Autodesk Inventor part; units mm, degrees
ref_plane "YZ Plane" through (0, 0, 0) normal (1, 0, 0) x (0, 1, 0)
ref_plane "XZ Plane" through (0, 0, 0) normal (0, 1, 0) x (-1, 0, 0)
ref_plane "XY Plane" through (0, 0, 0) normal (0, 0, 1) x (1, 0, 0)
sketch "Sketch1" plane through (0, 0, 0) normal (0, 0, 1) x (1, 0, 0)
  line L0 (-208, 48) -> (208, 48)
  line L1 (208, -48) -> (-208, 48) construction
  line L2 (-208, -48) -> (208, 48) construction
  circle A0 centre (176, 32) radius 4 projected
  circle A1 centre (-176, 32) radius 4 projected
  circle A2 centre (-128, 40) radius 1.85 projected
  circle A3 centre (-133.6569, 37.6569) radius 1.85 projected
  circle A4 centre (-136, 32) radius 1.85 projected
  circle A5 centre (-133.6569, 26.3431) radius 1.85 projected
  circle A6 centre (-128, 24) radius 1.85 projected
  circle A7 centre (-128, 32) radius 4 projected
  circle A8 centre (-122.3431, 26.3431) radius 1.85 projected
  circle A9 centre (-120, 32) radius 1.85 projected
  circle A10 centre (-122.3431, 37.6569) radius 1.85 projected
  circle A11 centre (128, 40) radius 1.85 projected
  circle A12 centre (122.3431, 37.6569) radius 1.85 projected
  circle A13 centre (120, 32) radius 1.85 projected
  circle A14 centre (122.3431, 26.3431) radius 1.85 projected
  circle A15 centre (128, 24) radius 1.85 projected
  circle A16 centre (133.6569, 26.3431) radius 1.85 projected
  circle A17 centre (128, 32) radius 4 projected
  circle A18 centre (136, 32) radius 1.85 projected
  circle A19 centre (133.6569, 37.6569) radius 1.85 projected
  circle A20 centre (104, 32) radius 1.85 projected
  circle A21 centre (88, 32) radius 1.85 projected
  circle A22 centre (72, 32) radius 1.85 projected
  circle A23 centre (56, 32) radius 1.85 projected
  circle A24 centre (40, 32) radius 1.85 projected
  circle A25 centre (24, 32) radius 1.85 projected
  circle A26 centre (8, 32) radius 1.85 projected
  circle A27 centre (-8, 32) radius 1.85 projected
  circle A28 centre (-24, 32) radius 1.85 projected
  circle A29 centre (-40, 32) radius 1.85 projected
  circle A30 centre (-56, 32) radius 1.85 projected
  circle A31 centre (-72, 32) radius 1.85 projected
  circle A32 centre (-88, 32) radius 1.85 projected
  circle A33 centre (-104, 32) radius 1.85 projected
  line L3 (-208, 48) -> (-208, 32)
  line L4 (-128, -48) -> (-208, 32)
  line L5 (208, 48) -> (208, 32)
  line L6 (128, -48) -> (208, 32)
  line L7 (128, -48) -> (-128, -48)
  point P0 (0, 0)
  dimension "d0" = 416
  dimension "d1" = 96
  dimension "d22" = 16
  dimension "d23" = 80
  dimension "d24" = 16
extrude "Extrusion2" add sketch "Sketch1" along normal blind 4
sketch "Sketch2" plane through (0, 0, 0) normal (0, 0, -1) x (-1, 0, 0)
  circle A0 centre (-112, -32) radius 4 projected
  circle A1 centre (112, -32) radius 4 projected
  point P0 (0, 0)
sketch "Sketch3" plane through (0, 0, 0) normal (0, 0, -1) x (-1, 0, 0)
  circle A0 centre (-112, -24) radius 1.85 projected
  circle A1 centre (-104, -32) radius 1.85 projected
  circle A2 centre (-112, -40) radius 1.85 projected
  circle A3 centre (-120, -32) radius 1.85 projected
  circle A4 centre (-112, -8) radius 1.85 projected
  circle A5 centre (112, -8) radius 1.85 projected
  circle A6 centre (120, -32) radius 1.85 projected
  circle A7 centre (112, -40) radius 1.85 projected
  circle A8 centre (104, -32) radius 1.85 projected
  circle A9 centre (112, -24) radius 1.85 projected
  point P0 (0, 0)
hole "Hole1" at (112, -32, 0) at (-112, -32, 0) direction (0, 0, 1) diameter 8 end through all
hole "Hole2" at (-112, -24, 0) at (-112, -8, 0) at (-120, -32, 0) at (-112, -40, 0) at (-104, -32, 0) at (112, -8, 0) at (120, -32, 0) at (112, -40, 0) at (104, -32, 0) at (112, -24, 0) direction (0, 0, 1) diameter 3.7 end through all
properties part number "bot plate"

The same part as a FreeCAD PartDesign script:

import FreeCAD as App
import Part
import Sketcher

V = App.Vector
Q = App.Units.Quantity


def add_polygon(sketch, points):
    """Adds a closed chain of lines whose ends are joined by coincident constraints."""
    first, n = sketch.GeometryCount, len(points)
    for a, b in zip(points, points[1:] + points[:1]):
        sketch.addGeometry(Part.LineSegment(App.Vector(*a, 0), App.Vector(*b, 0)), False)
    for i in range(n):
        sketch.addConstraint(Sketcher.Constraint("Coincident", first + i, 2, first + (i + 1) % n, 1))

doc = App.newDocument("Part")
body = doc.addObject("PartDesign::Body", "Body")

# Sketch on XY plane
sketch1 = body.newObject("Sketcher::SketchObject", "Sketch")
sketch1.AttachmentSupport = (doc.getObject("XY_Plane"), [""])
sketch1.MapMode = "FlatFace"
add_polygon(sketch1, [(208, 48), (-208, 48), (-208, 32), (-128, -48), (128, -48), (208, 32)])  # lines 0-5
sketch1.addGeometry(Part.Circle(V(-176, 32, 0), V(0, 0, 1), 4), False)  # 6
sketch1.addGeometry(Part.Circle(V(-133.7, 26.3, 0), V(0, 0, 1), 1.9), False)  # 7
sketch1.addGeometry(Part.Circle(V(-128, 24, 0), V(0, 0, 1), 1.9), False)  # 8
sketch1.addGeometry(Part.Circle(V(-122.3, 26.3, 0), V(0, 0, 1), 1.9), False)  # 9
sketch1.addGeometry(Part.Circle(V(-136, 32, 0), V(0, 0, 1), 1.9), False)  # 10
sketch1.addGeometry(Part.Circle(V(-128, 32, 0), V(0, 0, 1), 4), False)  # 11
sketch1.addGeometry(Part.Circle(V(-120, 32, 0), V(0, 0, 1), 1.9), False)  # 12
sketch1.addGeometry(Part.Circle(V(-133.7, 37.7, 0), V(0, 0, 1), 1.9), False)  # 13
sketch1.addGeometry(Part.Circle(V(-122.3, 37.7, 0), V(0, 0, 1), 1.9), False)  # 14
sketch1.addGeometry(Part.Circle(V(-128, 40, 0), V(0, 0, 1), 1.9), False)  # 15
sketch1.addGeometry(Part.Circle(V(-104, 32, 0), V(0, 0, 1), 1.9), False)  # 16
sketch1.addGeometry(Part.Circle(V(-88, 32, 0), V(0, 0, 1), 1.9), False)  # 17
sketch1.addGeometry(Part.Circle(V(-72, 32, 0), V(0, 0, 1), 1.9), False)  # 18
sketch1.addGeometry(Part.Circle(V(-56, 32, 0), V(0, 0, 1), 1.9), False)  # 19
sketch1.addGeometry(Part.Circle(V(-40, 32, 0), V(0, 0, 1), 1.9), False)  # 20
sketch1.addGeometry(Part.Circle(V(-24, 32, 0), V(0, 0, 1), 1.9), False)  # 21
sketch1.addGeometry(Part.Circle(V(-8, 32, 0), V(0, 0, 1), 1.9), False)  # 22
sketch1.addGeometry(Part.Circle(V(8, 32, 0), V(0, 0, 1), 1.9), False)  # 23
sketch1.addGeometry(Part.Circle(V(24, 32, 0), V(0, 0, 1), 1.9), False)  # 24
sketch1.addGeometry(Part.Circle(V(40, 32, 0), V(0, 0, 1), 1.9), False)  # 25
sketch1.addGeometry(Part.Circle(V(56, 32, 0), V(0, 0, 1), 1.9), False)  # 26
sketch1.addGeometry(Part.Circle(V(72, 32, 0), V(0, 0, 1), 1.9), False)  # 27
sketch1.addGeometry(Part.Circle(V(88, 32, 0), V(0, 0, 1), 1.9), False)  # 28
sketch1.addGeometry(Part.Circle(V(128, 24, 0), V(0, 0, 1), 1.9), False)  # 29
sketch1.addGeometry(Part.Circle(V(122.3, 26.3, 0), V(0, 0, 1), 1.9), False)  # 30
sketch1.addGeometry(Part.Circle(V(133.7, 26.3, 0), V(0, 0, 1), 1.9), False)  # 31
sketch1.addGeometry(Part.Circle(V(104, 32, 0), V(0, 0, 1), 1.9), False)  # 32
sketch1.addGeometry(Part.Circle(V(120, 32, 0), V(0, 0, 1), 1.9), False)  # 33
sketch1.addGeometry(Part.Circle(V(128, 32, 0), V(0, 0, 1), 4), False)  # 34
sketch1.addGeometry(Part.Circle(V(136, 32, 0), V(0, 0, 1), 1.9), False)  # 35
sketch1.addGeometry(Part.Circle(V(176, 32, 0), V(0, 0, 1), 4), False)  # 36
sketch1.addGeometry(Part.Circle(V(122.3, 37.7, 0), V(0, 0, 1), 1.9), False)  # 37
sketch1.addGeometry(Part.Circle(V(128, 40, 0), V(0, 0, 1), 1.9), False)  # 38
sketch1.addGeometry(Part.Circle(V(133.7, 37.7, 0), V(0, 0, 1), 1.9), False)  # 39
sketch1.addConstraint([
    Sketcher.Constraint("Horizontal", 0),
    Sketcher.Constraint("Vertical", 1),
    Sketcher.Constraint("Horizontal", 3),
    Sketcher.Constraint("Vertical", 5),
    Sketcher.Constraint("Equal", 7, 8),
    Sketcher.Constraint("Equal", 8, 9),
    Sketcher.Constraint("Equal", 9, 10),
    Sketcher.Constraint("Equal", 6, 11),
    Sketcher.Constraint("Equal", 10, 12),
    Sketcher.Constraint("Equal", 12, 13),
    Sketcher.Constraint("Equal", 13, 14),
    Sketcher.Constraint("Equal", 14, 15),
    Sketcher.Constraint("Equal", 15, 16),
    Sketcher.Constraint("Equal", 16, 17),
    Sketcher.Constraint("Equal", 17, 18),
    Sketcher.Constraint("Equal", 18, 19),
    Sketcher.Constraint("Equal", 19, 20),
    Sketcher.Constraint("Equal", 20, 21),
    Sketcher.Constraint("Equal", 21, 22),
    Sketcher.Constraint("Equal", 22, 23),
    Sketcher.Constraint("Equal", 23, 24),
    Sketcher.Constraint("Equal", 24, 25),
    Sketcher.Constraint("Equal", 25, 26),
    Sketcher.Constraint("Equal", 26, 27),
    Sketcher.Constraint("Equal", 27, 28),
    Sketcher.Constraint("Equal", 28, 29),
    Sketcher.Constraint("Equal", 29, 30),
    Sketcher.Constraint("Equal", 30, 31),
    Sketcher.Constraint("Equal", 31, 32),
    Sketcher.Constraint("Equal", 32, 33),
    Sketcher.Constraint("Equal", 11, 34),
    Sketcher.Constraint("Equal", 33, 35),
    Sketcher.Constraint("Equal", 34, 36),
    Sketcher.Constraint("Equal", 35, 37),
    Sketcher.Constraint("Equal", 37, 38),
    Sketcher.Constraint("Equal", 38, 39),
    Sketcher.Constraint("Symmetric", 22, 3, 23, 3, -2),
    Sketcher.Constraint("Symmetric", 21, 3, 24, 3, -2),
    Sketcher.Constraint("Symmetric", 20, 3, 25, 3, -2),
    Sketcher.Constraint("Symmetric", 19, 3, 26, 3, -2),
    Sketcher.Constraint("Symmetric", 18, 3, 27, 3, -2),
    Sketcher.Constraint("Symmetric", 17, 3, 28, 3, -2),
    Sketcher.Constraint("Symmetric", 8, 3, 29, 3, -2),
    Sketcher.Constraint("Symmetric", 9, 3, 30, 3, -2),
    Sketcher.Constraint("Symmetric", 7, 3, 31, 3, -2),
    Sketcher.Constraint("Symmetric", 16, 3, 32, 3, -2),
    Sketcher.Constraint("Symmetric", 12, 3, 33, 3, -2),
    Sketcher.Constraint("Symmetric", 11, 3, 34, 3, -2),
    Sketcher.Constraint("Symmetric", 10, 3, 35, 3, -2),
    Sketcher.Constraint("Symmetric", 6, 3, 36, 3, -2),
    Sketcher.Constraint("Symmetric", 14, 3, 37, 3, -2),
    Sketcher.Constraint("Symmetric", 15, 3, 38, 3, -2),
    Sketcher.Constraint("Symmetric", 13, 3, 39, 3, -2),
    Sketcher.Constraint("Symmetric", 1, 2, 4, 2, -2),
    Sketcher.Constraint("Perpendicular", 2, 4),
    Sketcher.Constraint("Horizontal", 7, 3, 9, 3),
    Sketcher.Constraint("Horizontal", 6, 3, 10, 3),
    Sketcher.Constraint("Horizontal", 10, 3, 11, 3),
    Sketcher.Constraint("Horizontal", 11, 3, 12, 3),
    Sketcher.Constraint("Horizontal", 13, 3, 14, 3),
    Sketcher.Constraint("Horizontal", 12, 3, 16, 3),
    Sketcher.Constraint("Horizontal", 16, 3, 17, 3),
    Sketcher.Constraint("Horizontal", 17, 3, 18, 3),
    Sketcher.Constraint("Horizontal", 18, 3, 19, 3),
    Sketcher.Constraint("Horizontal", 19, 3, 20, 3),
    Sketcher.Constraint("Horizontal", 20, 3, 21, 3),
    Sketcher.Constraint("Horizontal", 21, 3, 22, 3),
    Sketcher.Constraint("Horizontal", 36, 3, 1, 2),
    Sketcher.Constraint("Vertical", 8, 3, 11, 3),
    Sketcher.Constraint("Vertical", 7, 3, 13, 3),
    Sketcher.Constraint("Vertical", 9, 3, 14, 3),
    Sketcher.Constraint("Vertical", 11, 3, 15, 3),
    Sketcher.Constraint("Vertical", 15, 3, 2, 2),
    Sketcher.Constraint("Vertical", 38, 3, 3, 2),
    Sketcher.Constraint("DistanceX", 0, 2, 0, 1, Q("416 mm")),
    Sketcher.Constraint("DistanceY", 1, 2, 1, 1, Q("16 mm")),
    Sketcher.Constraint("Diameter", 6, Q("8 mm")),
    Sketcher.Constraint("DistanceX", 10, 3, 12, 3, Q("16 mm")),
    Sketcher.Constraint("DistanceX", 12, 3, 16, 3, Q("16 mm")),
    Sketcher.Constraint("DistanceX", 16, 3, 17, 3, Q("16 mm")),
    Sketcher.Constraint("DistanceX", 17, 3, 18, 3, Q("16 mm")),
    Sketcher.Constraint("DistanceX", 18, 3, 19, 3, Q("16 mm")),
    Sketcher.Constraint("DistanceX", 19, 3, 20, 3, Q("16 mm")),
    Sketcher.Constraint("DistanceX", 20, 3, 21, 3, Q("16 mm")),
    Sketcher.Constraint("DistanceX", 21, 3, 22, 3, Q("16 mm")),
    Sketcher.Constraint("DistanceX", 22, 3, 23, 3, Q("16 mm")),
    Sketcher.Constraint("DistanceX", 0, 2, 15, 3, Q("80 mm")),
    Sketcher.Constraint("Diameter", 7, Q("3.7 mm")),
    Sketcher.Constraint("DistanceX", 6, 3, -1, 1, Q("176 mm")),
    Sketcher.Constraint("DistanceY", -1, 1, 6, 3, Q("32 mm")),
    Sketcher.Constraint("DistanceY", -1, 1, 8, 3, Q("24 mm")),
    Sketcher.Constraint("DistanceY", -1, 1, 15, 3, Q("40 mm")),
    Sketcher.Constraint("DistanceX", 7, 3, -1, 1, Q("133.657 mm")),
    Sketcher.Constraint("DistanceY", -1, 1, 7, 3, Q("26.343 mm")),
    Sketcher.Constraint("DistanceX", 9, 3, -1, 1, Q("122.343 mm")),
    Sketcher.Constraint("DistanceY", -1, 1, 13, 3, Q("37.657 mm")),
])
pad1 = body.newObject("PartDesign::Pad", "Pad")
pad1.Profile = sketch1
pad1.Length = 4

# Sketch on XY plane
sketch2 = body.newObject("Sketcher::SketchObject", "Sketch001")
sketch2.AttachmentSupport = (doc.getObject("XY_Plane"), [""])
sketch2.MapMode = "FlatFace"
sketch2.addGeometry([
    Part.Circle(V(112, -32, 0), V(0, 0, 1), 4),
    Part.Circle(V(-112, -32, 0), V(0, 0, 1), 4),
], False)
sketch2.addConstraint([
    Sketcher.Constraint("Equal", 0, 1),
    Sketcher.Constraint("Symmetric", 0, 3, 1, 3, -2),
    Sketcher.Constraint("Diameter", 0, Q("8 mm")),
    Sketcher.Constraint("DistanceX", -1, 1, 0, 3, Q("112 mm")),
    Sketcher.Constraint("DistanceY", 0, 3, -1, 1, Q("32 mm")),
])
doc.recompute()
hole = body.newObject("PartDesign::Hole", "Hole")
hole.Profile = sketch2
hole.ThreadType = "None"
hole.Diameter = 8
hole.DepthType = "ThroughAll"
hole.Reversed = True

# Sketch on XY plane
sketch3 = body.newObject("Sketcher::SketchObject", "Sketch002")
sketch3.AttachmentSupport = (doc.getObject("XY_Plane"), [""])
sketch3.MapMode = "FlatFace"
sketch3.addGeometry([
    Part.Circle(V(-112, -24, 0), V(0, 0, 1), 1.9),  # 0
    Part.Circle(V(-112, -8, 0), V(0, 0, 1), 1.9),  # 1
    Part.Circle(V(-120, -32, 0), V(0, 0, 1), 1.9),  # 2
    Part.Circle(V(-112, -40, 0), V(0, 0, 1), 1.9),  # 3
    Part.Circle(V(-104, -32, 0), V(0, 0, 1), 1.9),  # 4
    Part.Circle(V(112, -8, 0), V(0, 0, 1), 1.9),  # 5
    Part.Circle(V(120, -32, 0), V(0, 0, 1), 1.9),  # 6
    Part.Circle(V(112, -40, 0), V(0, 0, 1), 1.9),  # 7
    Part.Circle(V(104, -32, 0), V(0, 0, 1), 1.9),  # 8
    Part.Circle(V(112, -24, 0), V(0, 0, 1), 1.9),  # 9
], False)
sketch3.addConstraint([
    Sketcher.Constraint("Equal", 0, 1),
    Sketcher.Constraint("Equal", 1, 2),
    Sketcher.Constraint("Equal", 2, 3),
    Sketcher.Constraint("Equal", 3, 4),
    Sketcher.Constraint("Equal", 4, 5),
    Sketcher.Constraint("Equal", 5, 6),
    Sketcher.Constraint("Equal", 6, 7),
    Sketcher.Constraint("Equal", 7, 8),
    Sketcher.Constraint("Equal", 8, 9),
    Sketcher.Constraint("Symmetric", 1, 3, 5, 3, -2),
    Sketcher.Constraint("Symmetric", 2, 3, 6, 3, -2),
    Sketcher.Constraint("Symmetric", 3, 3, 7, 3, -2),
    Sketcher.Constraint("Symmetric", 4, 3, 8, 3, -2),
    Sketcher.Constraint("Symmetric", 0, 3, 9, 3, -2),
    Sketcher.Constraint("Horizontal", 2, 3, 4, 3),
    Sketcher.Constraint("Vertical", 0, 3, 1, 3),
    Sketcher.Constraint("Vertical", 1, 3, 3, 3),
    Sketcher.Constraint("Diameter", 0, Q("3.7 mm")),
    Sketcher.Constraint("DistanceX", 0, 3, -1, 1, Q("112 mm")),
    Sketcher.Constraint("DistanceY", 0, 3, -1, 1, Q("24 mm")),
    Sketcher.Constraint("DistanceY", 1, 3, -1, 1, Q("8 mm")),
    Sketcher.Constraint("DistanceX", 2, 3, -1, 1, Q("120 mm")),
    Sketcher.Constraint("DistanceY", 2, 3, -1, 1, Q("32 mm")),
    Sketcher.Constraint("DistanceY", 3, 3, -1, 1, Q("40 mm")),
    Sketcher.Constraint("DistanceX", 4, 3, -1, 1, Q("104 mm")),
])
doc.recompute()
hole2 = body.newObject("PartDesign::Hole", "Hole001")
hole2.Profile = sketch3
hole2.ThreadType = "None"
hole2.Diameter = 3.7
hole2.DepthType = "ThroughAll"
hole2.Reversed = True

doc.recompute()
